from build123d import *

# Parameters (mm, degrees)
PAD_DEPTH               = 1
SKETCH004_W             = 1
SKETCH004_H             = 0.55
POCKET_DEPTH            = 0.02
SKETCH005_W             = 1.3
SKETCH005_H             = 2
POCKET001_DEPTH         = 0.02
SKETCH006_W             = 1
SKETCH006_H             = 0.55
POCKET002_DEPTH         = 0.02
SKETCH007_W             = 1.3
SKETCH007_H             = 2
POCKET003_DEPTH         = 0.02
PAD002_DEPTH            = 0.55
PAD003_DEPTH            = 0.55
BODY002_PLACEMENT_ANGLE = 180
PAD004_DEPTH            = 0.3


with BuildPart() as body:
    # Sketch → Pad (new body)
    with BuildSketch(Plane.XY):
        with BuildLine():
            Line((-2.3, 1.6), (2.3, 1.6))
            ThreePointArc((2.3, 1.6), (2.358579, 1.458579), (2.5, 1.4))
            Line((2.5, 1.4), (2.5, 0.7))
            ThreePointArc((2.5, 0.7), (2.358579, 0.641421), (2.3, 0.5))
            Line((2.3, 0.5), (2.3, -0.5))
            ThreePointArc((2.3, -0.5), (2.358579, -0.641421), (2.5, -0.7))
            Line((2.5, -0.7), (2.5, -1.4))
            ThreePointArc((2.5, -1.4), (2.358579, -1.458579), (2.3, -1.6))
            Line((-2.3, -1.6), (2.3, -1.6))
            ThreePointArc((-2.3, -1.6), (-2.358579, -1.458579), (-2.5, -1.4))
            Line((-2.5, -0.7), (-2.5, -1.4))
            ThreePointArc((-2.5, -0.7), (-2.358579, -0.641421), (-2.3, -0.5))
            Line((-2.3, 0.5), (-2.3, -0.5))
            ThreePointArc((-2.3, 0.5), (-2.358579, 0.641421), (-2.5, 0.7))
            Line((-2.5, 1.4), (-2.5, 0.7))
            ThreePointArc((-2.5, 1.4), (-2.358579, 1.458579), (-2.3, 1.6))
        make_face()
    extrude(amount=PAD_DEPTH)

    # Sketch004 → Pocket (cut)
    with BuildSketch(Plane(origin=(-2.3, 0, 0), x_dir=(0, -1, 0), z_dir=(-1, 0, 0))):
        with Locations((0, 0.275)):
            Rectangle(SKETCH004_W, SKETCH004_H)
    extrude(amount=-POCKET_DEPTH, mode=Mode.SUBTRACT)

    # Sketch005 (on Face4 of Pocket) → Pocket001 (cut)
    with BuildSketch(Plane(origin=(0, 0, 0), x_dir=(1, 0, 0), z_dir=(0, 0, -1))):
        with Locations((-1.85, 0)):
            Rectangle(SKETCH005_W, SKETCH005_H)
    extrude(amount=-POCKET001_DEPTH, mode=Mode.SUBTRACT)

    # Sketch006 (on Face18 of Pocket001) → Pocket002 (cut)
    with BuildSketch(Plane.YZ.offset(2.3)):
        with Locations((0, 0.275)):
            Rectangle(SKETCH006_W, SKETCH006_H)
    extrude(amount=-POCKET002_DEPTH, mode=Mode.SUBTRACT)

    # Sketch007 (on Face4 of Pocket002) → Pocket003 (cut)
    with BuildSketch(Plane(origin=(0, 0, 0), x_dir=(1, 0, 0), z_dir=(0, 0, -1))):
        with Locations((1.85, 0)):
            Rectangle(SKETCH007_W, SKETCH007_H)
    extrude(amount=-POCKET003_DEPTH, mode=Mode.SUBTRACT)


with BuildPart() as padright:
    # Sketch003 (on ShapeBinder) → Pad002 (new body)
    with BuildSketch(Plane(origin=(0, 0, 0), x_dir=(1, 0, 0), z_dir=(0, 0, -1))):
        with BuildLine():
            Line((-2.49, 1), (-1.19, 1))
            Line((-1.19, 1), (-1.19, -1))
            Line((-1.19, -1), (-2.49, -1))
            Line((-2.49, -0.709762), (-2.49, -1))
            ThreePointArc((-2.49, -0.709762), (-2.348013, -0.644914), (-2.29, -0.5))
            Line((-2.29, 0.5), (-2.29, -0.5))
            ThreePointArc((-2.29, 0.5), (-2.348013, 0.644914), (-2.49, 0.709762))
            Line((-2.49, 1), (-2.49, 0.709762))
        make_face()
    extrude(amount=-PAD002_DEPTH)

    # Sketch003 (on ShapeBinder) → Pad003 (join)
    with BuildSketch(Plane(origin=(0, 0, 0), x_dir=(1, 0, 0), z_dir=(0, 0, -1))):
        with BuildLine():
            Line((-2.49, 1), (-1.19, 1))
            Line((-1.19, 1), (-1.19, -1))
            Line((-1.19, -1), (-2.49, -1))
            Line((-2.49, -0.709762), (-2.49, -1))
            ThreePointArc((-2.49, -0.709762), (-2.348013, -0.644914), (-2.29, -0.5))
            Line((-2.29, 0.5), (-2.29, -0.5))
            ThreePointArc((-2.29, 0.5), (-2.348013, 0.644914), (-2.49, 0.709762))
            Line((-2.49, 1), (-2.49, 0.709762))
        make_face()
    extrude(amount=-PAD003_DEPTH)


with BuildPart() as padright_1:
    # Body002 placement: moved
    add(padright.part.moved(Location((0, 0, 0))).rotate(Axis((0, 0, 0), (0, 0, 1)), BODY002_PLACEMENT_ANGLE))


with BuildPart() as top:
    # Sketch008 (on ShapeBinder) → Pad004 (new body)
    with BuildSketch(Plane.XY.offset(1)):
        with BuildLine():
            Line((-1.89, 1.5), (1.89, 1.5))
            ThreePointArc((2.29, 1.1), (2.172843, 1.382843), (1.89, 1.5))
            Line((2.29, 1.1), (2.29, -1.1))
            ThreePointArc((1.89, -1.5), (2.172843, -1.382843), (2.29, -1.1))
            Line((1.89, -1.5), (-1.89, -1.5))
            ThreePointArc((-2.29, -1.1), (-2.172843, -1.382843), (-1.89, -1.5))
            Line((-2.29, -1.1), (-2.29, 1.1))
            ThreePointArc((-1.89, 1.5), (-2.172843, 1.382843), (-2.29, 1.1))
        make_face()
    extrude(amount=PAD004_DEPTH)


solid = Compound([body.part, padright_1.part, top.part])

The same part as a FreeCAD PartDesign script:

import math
import FreeCAD as App
import Part
import Sketcher

doc = App.newDocument("Part")
body = doc.addObject("PartDesign::Body", "Body")

# Sketch on XY plane
sketch1 = doc.addObject("Sketcher::SketchObject", "Sketch")
body.addObject(sketch1)
sketch1.AttachmentSupport = (doc.XY_Plane, [""])
sketch1.MapMode = "FlatFace"
sketch1.addGeometry([
    Part.LineSegment(App.Vector(2.3, 1.6, 0), App.Vector(-2.3, 1.6, 0)),  # 0
    Part.ArcOfCircle(Part.Circle(App.Vector(-2.5, 1.6, 0), App.Vector(0, 0, 1), 0.2), math.radians(-90), math.radians(0)),  # 1
    Part.LineSegment(App.Vector(-2.5, 1.4, 0), App.Vector(-2.5, 0.7, 0)),  # 2
    Part.ArcOfCircle(Part.Circle(App.Vector(-2.5, 0.5, 0), App.Vector(0, 0, 1), 0.2), math.radians(0), math.radians(90)),  # 3
    Part.LineSegment(App.Vector(-2.3, 0.5, 0), App.Vector(-2.3, -0.5, 0)),  # 4
    Part.ArcOfCircle(Part.Circle(App.Vector(-2.5, -0.5, 0), App.Vector(0, 0, 1), 0.2), math.radians(-90), math.radians(0)),  # 5
    Part.LineSegment(App.Vector(-2.5, -0.7, 0), App.Vector(-2.5, -1.4, 0)),  # 6
    Part.ArcOfCircle(Part.Circle(App.Vector(-2.5, -1.6, 0), App.Vector(0, 0, 1), 0.2), math.radians(0), math.radians(90)),  # 7
    Part.LineSegment(App.Vector(-2.3, -1.6, 0), App.Vector(2.3, -1.6, 0)),  # 8
    Part.ArcOfCircle(Part.Circle(App.Vector(2.5, -1.6, 0), App.Vector(0, 0, 1), 0.2), math.radians(90), math.radians(180)),  # 9
    Part.LineSegment(App.Vector(2.5, -1.4, 0), App.Vector(2.5, -0.7, 0)),  # 10
    Part.ArcOfCircle(Part.Circle(App.Vector(2.5, -0.5, 0), App.Vector(0, 0, 1), 0.2), math.radians(-180), math.radians(-90)),  # 11
    Part.LineSegment(App.Vector(2.3, -0.5, 0), App.Vector(2.3, 0.5, 0)),  # 12
    Part.ArcOfCircle(Part.Circle(App.Vector(2.5, 0.5, 0), App.Vector(0, 0, 1), 0.2), math.radians(90), math.radians(180)),  # 13
    Part.LineSegment(App.Vector(2.5, 0.7, 0), App.Vector(2.5, 1.4, 0)),  # 14
    Part.ArcOfCircle(Part.Circle(App.Vector(2.5, 1.6, 0), App.Vector(0, 0, 1), 0.2), math.radians(-180), math.radians(-90)),  # 15
], False)
sketch1.addConstraint([
    Sketcher.Constraint("Coincident", 0, 2, 1, 2),
    Sketcher.Constraint("Coincident", 1, 1, 2, 1),
    Sketcher.Constraint("Coincident", 2, 2, 3, 2),
    Sketcher.Constraint("Coincident", 3, 1, 4, 1),
    Sketcher.Constraint("Coincident", 4, 2, 5, 2),
    Sketcher.Constraint("Coincident", 5, 1, 6, 1),
    Sketcher.Constraint("Coincident", 6, 2, 7, 2),
    Sketcher.Constraint("Coincident", 7, 1, 8, 1),
    Sketcher.Constraint("Coincident", 8, 2, 9, 2),
    Sketcher.Constraint("Coincident", 9, 1, 10, 1),
    Sketcher.Constraint("Coincident", 10, 2, 11, 2),
    Sketcher.Constraint("Coincident", 11, 1, 12, 1),
    Sketcher.Constraint("Coincident", 12, 2, 13, 2),
    Sketcher.Constraint("Coincident", 13, 1, 14, 1),
    Sketcher.Constraint("Coincident", 14, 2, 15, 2),
    Sketcher.Constraint("Coincident", 15, 1, 0, 1),
    Sketcher.Constraint("Horizontal", 0),
    Sketcher.Constraint("Vertical", 2),
    Sketcher.Constraint("Vertical", 4),
    Sketcher.Constraint("Vertical", 6),
    Sketcher.Constraint("Horizontal", 8),
    Sketcher.Constraint("Vertical", 10),
    Sketcher.Constraint("Vertical", 12),
    Sketcher.Constraint("Vertical", 14),
    Sketcher.Constraint("Equal", 1, 3),
    Sketcher.Constraint("Equal", 3, 5),
    Sketcher.Constraint("Equal", 5, 7),
    Sketcher.Constraint("Equal", 7, 9),
    Sketcher.Constraint("Equal", 9, 11),
    Sketcher.Constraint("Equal", 11, 13),
    Sketcher.Constraint("Equal", 13, 15),
    Sketcher.Constraint("Symmetric", 1, 3, 9, 3, -1, 1),
    Sketcher.Constraint("Symmetric", 3, 3, 11, 3, -1, 1),
    Sketcher.Constraint("Symmetric", 7, 3, 15, 3, -1, 1),
    Sketcher.Constraint("Symmetric", 5, 1, 13, 1, -1, 1),
    Sketcher.Constraint("Symmetric", 7, 3, 9, 3, -2),
    Sketcher.Constraint("Symmetric", 5, 1, 10, 2, -2),
    Sketcher.Constraint("Horizontal", 15, 3, 0, 2),
    Sketcher.Constraint("Horizontal", 13, 3, 3, 1),
    Sketcher.Constraint("Horizontal", 11, 3, 4, 2),
    Sketcher.Constraint("Horizontal", 9, 3, 7, 1),
    Sketcher.Constraint("Horizontal", 4, 2, 11, 1),
    Sketcher.Constraint("Horizontal", 3, 1, 12, 2),
    Sketcher.Constraint("Vertical", 1, 3, 3, 3),
    Sketcher.Constraint("Vertical", 7, 3, 1, 1),
    Sketcher.Constraint("Vertical", 2, 2, 5, 1),
    Sketcher.Constraint("Radius", 1, 0.200001),
    Sketcher.Constraint("DistanceY", 4, 2, 4, 1, 1.0),
    Sketcher.Constraint("DistanceX", 0, 2, 0, 1, 4.6),
    Sketcher.Constraint("DistanceY", 2, 2, 2, 1, 0.7),
])
pad1 = doc.addObject("PartDesign::Pad", "Pad")
body.addObject(pad1)
pad1.Profile = sketch1
pad1.Length = 1

# Sketch on YZ plane
sketch2 = doc.addObject("Sketcher::SketchObject", "Sketch001")
body.addObject(sketch2)
sketch2.AttachmentSupport = (doc.YZ_Plane, [""])
sketch2.MapMode = "FlatFace"
sketch2.AttachmentOffset = App.Placement(App.Vector(0, 0, -2.3), App.Rotation())
sketch2.addGeometry([
    Part.LineSegment(App.Vector(0.5, 0.6, 0), App.Vector(0.5, 0, 0)),
    Part.LineSegment(App.Vector(0.5, 0, 0), App.Vector(-0.5, 0, 0)),
    Part.LineSegment(App.Vector(-0.5, 0, 0), App.Vector(-0.5, 0.6, 0)),
    Part.LineSegment(App.Vector(-0.5, 0.6, 0), App.Vector(0.5, 0.6, 0)),
], False)
sketch2.addConstraint([
    Sketcher.Constraint("Coincident", 0, 2, 1, 1),
    Sketcher.Constraint("Coincident", 1, 2, 2, 1),
    Sketcher.Constraint("Coincident", 2, 2, 3, 1),
    Sketcher.Constraint("Coincident", 3, 2, 0, 1),
    Sketcher.Constraint("Vertical", 0),
    Sketcher.Constraint("Horizontal", 1),
    Sketcher.Constraint("Vertical", 2),
    Sketcher.Constraint("Horizontal", 3),
    Sketcher.Constraint("Symmetric", 0, 2, 1, 2, -1, 1),
    Sketcher.Constraint("DistanceX", 1, 2, 1, 1, 1.0),
    Sketcher.Constraint("DistanceY", 0, 2, 0, 1, 0.55),
])
pocket1 = doc.addObject("PartDesign::Pocket", "Pocket")
body.addObject(pocket1)
pocket1.Profile = sketch2
pocket1.Length = 0.02
pocket1.Reversed = True

# Sketch on XY plane
sketch3 = doc.addObject("Sketcher::SketchObject", "Sketch002")
body.addObject(sketch3)
sketch3.AttachmentSupport = (doc.XY_Plane, [""])
sketch3.MapMode = "FlatFace"
sketch3.addGeometry([
    Part.LineSegment(App.Vector(-2.5, -1, 0), App.Vector(-2.5, 1, 0)),
    Part.LineSegment(App.Vector(-2.5, 1, 0), App.Vector(-1.2, 1, 0)),
    Part.LineSegment(App.Vector(-1.2, 1, 0), App.Vector(-1.2, -1, 0)),
    Part.LineSegment(App.Vector(-1.2, -1, 0), App.Vector(-2.5, -1, 0)),
], False)
sketch3.addConstraint([
    Sketcher.Constraint("Coincident", 0, 2, 1, 1),
    Sketcher.Constraint("Coincident", 1, 2, 2, 1),
    Sketcher.Constraint("Coincident", 2, 2, 3, 1),
    Sketcher.Constraint("Coincident", 3, 2, 0, 1),
    Sketcher.Constraint("Vertical", 0),
    Sketcher.Constraint("Horizontal", 1),
    Sketcher.Constraint("Vertical", 2),
    Sketcher.Constraint("Horizontal", 3),
    Sketcher.Constraint("DistanceY", 0, 1, 0, 2, 2.0),
    Sketcher.Constraint("DistanceX", 1, 1, 1, 2, 1.3),
    Sketcher.Constraint("DistanceY", -1, 1, 0, 2, 1.0),
    Sketcher.Constraint("DistanceX", 0, 2, -1, 1, 2.5),
])
pocket2 = doc.addObject("PartDesign::Pocket", "Pocket001")
body.addObject(pocket2)
pocket2.Profile = sketch3
pocket2.Length = 0.02
pocket2.Reversed = True

# Sketch on YZ plane
sketch4 = doc.addObject("Sketcher::SketchObject", "Sketch003")
body.addObject(sketch4)
sketch4.AttachmentSupport = (doc.YZ_Plane, [""])
sketch4.MapMode = "FlatFace"
sketch4.AttachmentOffset = App.Placement(App.Vector(0, 0, 2.3), App.Rotation())
sketch4.addGeometry([
    Part.LineSegment(App.Vector(-0.5, 0.6, 0), App.Vector(-0.5, 0, 0)),
    Part.LineSegment(App.Vector(-0.5, 0, 0), App.Vector(0.5, 0, 0)),
    Part.LineSegment(App.Vector(0.5, 0, 0), App.Vector(0.5, 0.6, 0)),
    Part.LineSegment(App.Vector(0.5, 0.6, 0), App.Vector(-0.5, 0.6, 0)),
], False)
sketch4.addConstraint([
    Sketcher.Constraint("Coincident", 0, 2, 1, 1),
    Sketcher.Constraint("Coincident", 1, 2, 2, 1),
    Sketcher.Constraint("Coincident", 2, 2, 3, 1),
    Sketcher.Constraint("Coincident", 3, 2, 0, 1),
    Sketcher.Constraint("Vertical", 0),
    Sketcher.Constraint("Horizontal", 1),
    Sketcher.Constraint("Vertical", 2),
    Sketcher.Constraint("Horizontal", 3),
    Sketcher.Constraint("Symmetric", 0, 2, 1, 2, -1, 1),
    Sketcher.Constraint("DistanceX", 1, 1, 1, 2, 1.0),
    Sketcher.Constraint("DistanceY", 0, 2, 0, 1, 0.55),
])
pocket3 = doc.addObject("PartDesign::Pocket", "Pocket002")
body.addObject(pocket3)
pocket3.Profile = sketch4
pocket3.Length = 0.02

# Sketch on XY plane
sketch5 = doc.addObject("Sketcher::SketchObject", "Sketch004")
body.addObject(sketch5)
sketch5.AttachmentSupport = (doc.XY_Plane, [""])
sketch5.MapMode = "FlatFace"
sketch5.addGeometry([
    Part.LineSegment(App.Vector(1.2, -1, 0), App.Vector(1.2, 1, 0)),
    Part.LineSegment(App.Vector(1.2, 1, 0), App.Vector(2.5, 1, 0)),
    Part.LineSegment(App.Vector(2.5, 1, 0), App.Vector(2.5, -1, 0)),
    Part.LineSegment(App.Vector(2.5, -1, 0), App.Vector(1.2, -1, 0)),
], False)
sketch5.addConstraint([
    Sketcher.Constraint("Coincident", 0, 2, 1, 1),
    Sketcher.Constraint("Coincident", 1, 2, 2, 1),
    Sketcher.Constraint("Coincident", 2, 2, 3, 1),
    Sketcher.Constraint("Coincident", 3, 2, 0, 1),
    Sketcher.Constraint("Vertical", 0),
    Sketcher.Constraint("Horizontal", 1),
    Sketcher.Constraint("Vertical", 2),
    Sketcher.Constraint("Horizontal", 3),
    Sketcher.Constraint("DistanceY", 0, 1, 0, 2, 2.0),
    Sketcher.Constraint("DistanceX", 1, 1, 1, 2, 1.3),
    Sketcher.Constraint("DistanceY", -1, 1, 0, 2, 1.0),
    Sketcher.Constraint("DistanceX", -1, 1, 0, 2, 1.2),
])
pocket4 = doc.addObject("PartDesign::Pocket", "Pocket003")
body.addObject(pocket4)
pocket4.Profile = sketch5
pocket4.Length = 0.02
pocket4.Reversed = True
body2 = doc.addObject("PartDesign::Body", "Body001")

# Sketch on XY plane
sketch6 = doc.addObject("Sketcher::SketchObject", "Sketch005")
body2.addObject(sketch6)
sketch6.AttachmentSupport = (doc.getObject("XY_Plane001"), [""])
sketch6.MapMode = "FlatFace"
sketch6.addGeometry([
    Part.LineSegment(App.Vector(-1.19, -1, 0), App.Vector(-2.49, -1, 0)),  # 0
    Part.LineSegment(App.Vector(-2.49, -1, 0), App.Vector(-2.49, -0.71, 0)),  # 1
    Part.ArcOfCircle(Part.Circle(App.Vector(-2.5, -0.5, 0), App.Vector(0, 0, 1), 0.21), math.radians(-87), math.radians(0)),  # 2
    Part.LineSegment(App.Vector(-2.29, -0.5, 0), App.Vector(-2.29, 0.5, 0)),  # 3
    Part.ArcOfCircle(Part.Circle(App.Vector(-2.5, 0.5, 0), App.Vector(0, 0, 1), 0.21), math.radians(0), math.radians(87)),  # 4
    Part.LineSegment(App.Vector(-2.49, 0.71, 0), App.Vector(-2.49, 1, 0)),  # 5
    Part.LineSegment(App.Vector(-2.49, 1, 0), App.Vector(-1.19, 1, 0)),  # 6
    Part.LineSegment(App.Vector(-1.19, 1, 0), App.Vector(-1.19, -1, 0)),  # 7
], False)
sketch6.addConstraint([
    Sketcher.Constraint("Coincident", 0, 2, 1, 1),
    Sketcher.Constraint("Coincident", 1, 2, 2, 1),
    Sketcher.Constraint("Coincident", 2, 2, 3, 1),
    Sketcher.Constraint("Coincident", 3, 2, 4, 1),
    Sketcher.Constraint("Coincident", 4, 2, 5, 1),
    Sketcher.Constraint("Coincident", 5, 2, 6, 1),
    Sketcher.Constraint("Coincident", 6, 2, 7, 1),
    Sketcher.Constraint("Coincident", 7, 2, 0, 1),
    Sketcher.Constraint("Horizontal", 0),
    Sketcher.Constraint("Vertical", 1),
    Sketcher.Constraint("Vertical", 3),
    Sketcher.Constraint("Vertical", 5),
    Sketcher.Constraint("Horizontal", 6),
    Sketcher.Constraint("Vertical", 7),
    Sketcher.Constraint("Equal", 2, 4),
    Sketcher.Constraint("Symmetric", 1, 2, 4, 2, -1),
    Sketcher.Constraint("Horizontal", 4, 3, 3, 2),
    Sketcher.Constraint("Equal", 1, 5),
    Sketcher.Constraint("DistanceY", 3, 1, 3, 2, 1.0),
    Sketcher.Constraint("DistanceY", 7, 2, 7, 1, 2.0),
    Sketcher.Constraint("Radius", 2, 0.21),
    Sketcher.Constraint("DistanceX", 0, 2, 0, 1, 1.3),
    Sketcher.Constraint("DistanceY", 2, 3, 4, 3, 1.000001),
    Sketcher.Constraint("DistanceX", 2, 3, -1, 1, 2.5),
    Sketcher.Constraint("DistanceX", 1, 2, 2, 2, 0.2),
])
pad2 = doc.addObject("PartDesign::Pad", "Pad001")
body2.addObject(pad2)
pad2.Profile = sketch6
pad2.Length = 0.55

# Sketch on XY plane
sketch7 = doc.addObject("Sketcher::SketchObject", "Sketch006")
body2.addObject(sketch7)
sketch7.AttachmentSupport = (doc.getObject("XY_Plane001"), [""])
sketch7.MapMode = "FlatFace"
sketch7.addGeometry([
    Part.LineSegment(App.Vector(-1.19, -1, 0), App.Vector(-2.49, -1, 0)),  # 0
    Part.LineSegment(App.Vector(-2.49, -1, 0), App.Vector(-2.49, -0.71, 0)),  # 1
    Part.ArcOfCircle(Part.Circle(App.Vector(-2.5, -0.5, 0), App.Vector(0, 0, 1), 0.21), math.radians(-87), math.radians(0)),  # 2
    Part.LineSegment(App.Vector(-2.29, -0.5, 0), App.Vector(-2.29, 0.5, 0)),  # 3
    Part.ArcOfCircle(Part.Circle(App.Vector(-2.5, 0.5, 0), App.Vector(0, 0, 1), 0.21), math.radians(0), math.radians(87)),  # 4
    Part.LineSegment(App.Vector(-2.49, 0.71, 0), App.Vector(-2.49, 1, 0)),  # 5
    Part.LineSegment(App.Vector(-2.49, 1, 0), App.Vector(-1.19, 1, 0)),  # 6
    Part.LineSegment(App.Vector(-1.19, 1, 0), App.Vector(-1.19, -1, 0)),  # 7
], False)
sketch7.addConstraint([
    Sketcher.Constraint("Coincident", 0, 2, 1, 1),
    Sketcher.Constraint("Coincident", 1, 2, 2, 1),
    Sketcher.Constraint("Coincident", 2, 2, 3, 1),
    Sketcher.Constraint("Coincident", 3, 2, 4, 1),
    Sketcher.Constraint("Coincident", 4, 2, 5, 1),
    Sketcher.Constraint("Coincident", 5, 2, 6, 1),
    Sketcher.Constraint("Coincident", 6, 2, 7, 1),
    Sketcher.Constraint("Coincident", 7, 2, 0, 1),
    Sketcher.Constraint("Horizontal", 0),
    Sketcher.Constraint("Vertical", 1),
    Sketcher.Constraint("Vertical", 3),
    Sketcher.Constraint("Vertical", 5),
    Sketcher.Constraint("Horizontal", 6),
    Sketcher.Constraint("Vertical", 7),
    Sketcher.Constraint("Equal", 2, 4),
    Sketcher.Constraint("Symmetric", 1, 2, 4, 2, -1),
    Sketcher.Constraint("Horizontal", 4, 3, 3, 2),
    Sketcher.Constraint("Equal", 1, 5),
    Sketcher.Constraint("DistanceY", 3, 1, 3, 2, 1.0),
    Sketcher.Constraint("DistanceY", 7, 2, 7, 1, 2.0),
    Sketcher.Constraint("Radius", 2, 0.21),
    Sketcher.Constraint("DistanceX", 0, 2, 0, 1, 1.3),
    Sketcher.Constraint("DistanceY", 2, 3, 4, 3, 1.000001),
    Sketcher.Constraint("DistanceX", 2, 3, -1, 1, 2.5),
    Sketcher.Constraint("DistanceX", 1, 2, 2, 2, 0.2),
])
pad3 = doc.addObject("PartDesign::Pad", "Pad002")
body2.addObject(pad3)
pad3.Profile = sketch7
pad3.Length = 0.55
body3 = doc.addObject("PartDesign::Body", "Body002")
doc.recompute()

body2.Placement = App.Placement(App.Vector(0, 0, 0), App.Rotation(App.Vector(0, 0, 1), 180))
boolean = doc.addObject("PartDesign::Boolean", "Boolean")
body3.addObject(boolean)
boolean.Type = "Fuse"
boolean.addObjects([body2])
body4 = doc.addObject("PartDesign::Body", "Body003")

# Sketch on XY plane
sketch8 = doc.addObject("Sketcher::SketchObject", "Sketch007")
body4.addObject(sketch8)
sketch8.AttachmentSupport = (doc.getObject("XY_Plane003"), [""])
sketch8.MapMode = "FlatFace"
sketch8.AttachmentOffset = App.Placement(App.Vector(0, 0, 1), App.Rotation())
sketch8.addGeometry([
    Part.LineSegment(App.Vector(1.89, 1.5, 0), App.Vector(-1.89, 1.5, 0)),  # 0
    Part.ArcOfCircle(Part.Circle(App.Vector(-1.89, 1.1, 0), App.Vector(0, 0, 1), 0.4), math.radians(90), math.radians(180)),  # 1
    Part.LineSegment(App.Vector(-2.29, 1.1, 0), App.Vector(-2.29, -1.1, 0)),  # 2
    Part.ArcOfCircle(Part.Circle(App.Vector(-1.89, -1.1, 0), App.Vector(0, 0, 1), 0.4), math.radians(180), math.radians(270)),  # 3
    Part.LineSegment(App.Vector(-1.89, -1.5, 0), App.Vector(1.89, -1.5, 0)),  # 4
    Part.ArcOfCircle(Part.Circle(App.Vector(1.89, -1.1, 0), App.Vector(0, 0, 1), 0.4), math.radians(-90), math.radians(0)),  # 5
    Part.LineSegment(App.Vector(2.29, -1.1, 0), App.Vector(2.29, 1.1, 0)),  # 6
    Part.ArcOfCircle(Part.Circle(App.Vector(1.89, 1.1, 0), App.Vector(0, 0, 1), 0.4), math.radians(0), math.radians(90)),  # 7
], False)
sketch8.addConstraint([
    Sketcher.Constraint("Coincident", 0, 2, 1, 1),
    Sketcher.Constraint("Coincident", 1, 2, 2, 1),
    Sketcher.Constraint("Coincident", 2, 2, 3, 1),
    Sketcher.Constraint("Coincident", 3, 2, 4, 1),
    Sketcher.Constraint("Coincident", 4, 2, 5, 1),
    Sketcher.Constraint("Coincident", 5, 2, 6, 1),
    Sketcher.Constraint("Coincident", 6, 2, 7, 1),
    Sketcher.Constraint("Coincident", 7, 2, 0, 1),
    Sketcher.Constraint("Horizontal", 0),
    Sketcher.Constraint("Vertical", 2),
    Sketcher.Constraint("Horizontal", 4),
    Sketcher.Constraint("Vertical", 6),
    Sketcher.Constraint("Equal", 1, 3),
    Sketcher.Constraint("Equal", 3, 5),
    Sketcher.Constraint("Equal", 5, 7),
    Sketcher.Constraint("Symmetric", 1, 3, 5, 3, -1, 1),
    Sketcher.Constraint("Horizontal", 7, 3, 1, 2),
    Sketcher.Constraint("Horizontal", 5, 3, 2, 2),
    Sketcher.Constraint("Horizontal", 2, 2, 5, 2),
    Sketcher.Constraint("Horizontal", 1, 2, 6, 2),
    Sketcher.Constraint("Vertical", 3, 3, 0, 2),
    Sketcher.Constraint("Vertical", 0, 2, 3, 2),
    Sketcher.Constraint("Vertical", 7, 3, 4, 2),
    Sketcher.Constraint("Vertical", 4, 2, 7, 2),
    Sketcher.Constraint("Radius", 1, 0.399999),
    Sketcher.Constraint("DistanceY", 2, 2, 2, 1, 2.2),
    Sketcher.Constraint("DistanceX", 0, 2, 0, 1, 3.78),
])
pad4 = doc.addObject("PartDesign::Pad", "Pad003")
body4.addObject(pad4)
pad4.Profile = sketch8
pad4.Length = 0.3

doc.recompute()
